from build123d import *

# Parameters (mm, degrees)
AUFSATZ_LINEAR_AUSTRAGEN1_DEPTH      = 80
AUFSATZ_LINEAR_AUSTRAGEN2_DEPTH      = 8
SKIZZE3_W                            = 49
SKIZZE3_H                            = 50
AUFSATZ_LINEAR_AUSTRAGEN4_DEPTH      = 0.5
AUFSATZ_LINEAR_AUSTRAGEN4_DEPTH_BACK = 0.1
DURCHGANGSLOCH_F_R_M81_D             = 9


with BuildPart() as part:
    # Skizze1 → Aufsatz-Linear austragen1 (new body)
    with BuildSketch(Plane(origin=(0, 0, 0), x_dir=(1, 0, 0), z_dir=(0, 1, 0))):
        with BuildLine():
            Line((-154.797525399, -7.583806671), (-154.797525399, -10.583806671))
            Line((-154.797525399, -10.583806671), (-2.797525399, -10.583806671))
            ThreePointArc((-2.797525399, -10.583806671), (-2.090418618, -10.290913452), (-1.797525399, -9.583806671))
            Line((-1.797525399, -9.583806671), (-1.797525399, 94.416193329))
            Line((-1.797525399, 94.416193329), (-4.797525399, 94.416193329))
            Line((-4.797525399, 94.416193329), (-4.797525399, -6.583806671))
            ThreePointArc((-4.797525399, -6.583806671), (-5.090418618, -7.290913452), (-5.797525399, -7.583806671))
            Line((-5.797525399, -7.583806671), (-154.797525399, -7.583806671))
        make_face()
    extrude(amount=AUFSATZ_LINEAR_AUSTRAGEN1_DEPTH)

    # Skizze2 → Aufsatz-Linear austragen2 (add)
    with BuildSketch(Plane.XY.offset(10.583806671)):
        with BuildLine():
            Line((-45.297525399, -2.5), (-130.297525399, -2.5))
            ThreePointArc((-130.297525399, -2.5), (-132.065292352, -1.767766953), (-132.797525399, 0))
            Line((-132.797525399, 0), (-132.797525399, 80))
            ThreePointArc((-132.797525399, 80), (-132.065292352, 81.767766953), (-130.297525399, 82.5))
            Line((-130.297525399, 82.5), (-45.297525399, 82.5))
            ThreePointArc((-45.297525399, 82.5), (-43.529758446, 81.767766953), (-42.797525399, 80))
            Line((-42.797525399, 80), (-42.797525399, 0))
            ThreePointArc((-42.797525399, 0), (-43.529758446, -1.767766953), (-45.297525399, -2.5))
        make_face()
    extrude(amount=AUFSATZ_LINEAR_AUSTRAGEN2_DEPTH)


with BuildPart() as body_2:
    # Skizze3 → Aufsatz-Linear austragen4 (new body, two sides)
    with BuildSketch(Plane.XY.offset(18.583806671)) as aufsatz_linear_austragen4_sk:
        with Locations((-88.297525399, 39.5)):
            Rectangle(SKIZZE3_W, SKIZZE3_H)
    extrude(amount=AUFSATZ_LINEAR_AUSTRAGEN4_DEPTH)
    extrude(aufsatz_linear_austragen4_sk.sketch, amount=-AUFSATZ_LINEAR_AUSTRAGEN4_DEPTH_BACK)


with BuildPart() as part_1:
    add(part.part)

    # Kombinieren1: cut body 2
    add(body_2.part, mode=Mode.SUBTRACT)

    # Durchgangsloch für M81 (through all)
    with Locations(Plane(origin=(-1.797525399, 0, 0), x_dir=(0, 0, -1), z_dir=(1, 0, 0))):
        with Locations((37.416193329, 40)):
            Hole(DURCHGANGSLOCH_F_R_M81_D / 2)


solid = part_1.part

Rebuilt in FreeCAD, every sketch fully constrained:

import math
import FreeCAD as App
import Part
import Sketcher
from FreeCAD import Vector
Q = App.Units.Quantity

doc = App.newDocument("Part")
params = doc.addObject("Spreadsheet::Sheet", "Params")
for row, (alias, value) in enumerate([
    ("sketch1_radius", "1 mm"),
    ("sketch1_width", "152 mm"),
    ("sketch1_width2", "3 mm"),
    ("sketch1_height", "104 mm"),
    ("pad1_length", "80 mm"),
    ("sketch2_radius", "2.5 mm"),
    ("sketch2_width", "85 mm"),
    ("sketch2_height", "80 mm"),
    ("pad2_length", "8 mm"),
    ("sketch3_width", "49 mm"),
    ("sketch3_height", "50 mm"),
    ("pad3_length", "0.5 mm"),
    ("pad3_length2", "0.1 mm"),
    ("sketch4_diameter", "9 mm"),
    ("hole_diameter", "9 mm"),
], start=1):
    params.set(f"A{row}", alias)
    params.set(f"B{row}", "=" + value)
    params.setAlias(f"B{row}", alias)

body = doc.addObject("PartDesign::Body", "Body")

# Sketch on XZ plane
sketch1 = body.newObject("Sketcher::SketchObject", "Sketch")
sketch1.AttachmentSupport = (doc.getObject("XZ_Plane"), [""])
sketch1.MapMode = "FlatFace"
sketch1.addGeometry([
    Part.LineSegment(Vector(-154.8, 7.6, 0), Vector(-154.8, 10.6, 0)),  # 0
    Part.LineSegment(Vector(-154.8, 10.6, 0), Vector(-2.8, 10.6, 0)),  # 1
    Part.ArcOfCircle(Part.Circle(Vector(-2.8, 9.6, 0), Vector(0, 0, 1), 1), math.radians(0), math.radians(90)),  # 2
    Part.LineSegment(Vector(-1.8, 9.6, 0), Vector(-1.8, -94.4, 0)),  # 3
    Part.LineSegment(Vector(-1.8, -94.4, 0), Vector(-4.8, -94.4, 0)),  # 4
    Part.LineSegment(Vector(-4.8, -94.4, 0), Vector(-4.8, 6.6, 0)),  # 5
    Part.ArcOfCircle(Part.Circle(Vector(-5.8, 6.6, 0), Vector(0, 0, 1), 1), math.radians(0), math.radians(90)),  # 6
    Part.LineSegment(Vector(-5.8, 7.6, 0), Vector(-154.8, 7.6, 0)),  # 7
], False)
sketch1.addConstraint([
    Sketcher.Constraint("Coincident", 0, 2, 1, 1),
    Sketcher.Constraint("Tangent", 1, 2, 2, 2),
    Sketcher.Constraint("Tangent", 2, 1, 3, 1),
    Sketcher.Constraint("Coincident", 3, 2, 4, 1),
    Sketcher.Constraint("Coincident", 4, 2, 5, 1),
    Sketcher.Constraint("Tangent", 5, 2, 6, 1),
    Sketcher.Constraint("Tangent", 6, 2, 7, 1),
    Sketcher.Constraint("Coincident", 7, 2, 0, 1),
    Sketcher.Constraint("Vertical", 0),
    Sketcher.Constraint("Horizontal", 1),
    Sketcher.Constraint("Vertical", 3),
    Sketcher.Constraint("Horizontal", 4),
    Sketcher.Constraint("Vertical", 5),
    Sketcher.Constraint("Horizontal", 7),
    Sketcher.Constraint("Equal", 2, 6),
    Sketcher.Constraint("Equal", 4, 0),
    Sketcher.Constraint("Radius", 2, Q("1 mm")),
    Sketcher.Constraint("DistanceX", 1, 1, 1, 2, Q("152 mm")),
    Sketcher.Constraint("DistanceX", 4, 2, 4, 1, Q("3 mm")),
    Sketcher.Constraint("DistanceY", 3, 2, 3, 1, Q("104 mm")),
    Sketcher.Constraint("DistanceX", 2, 3, -1, 1, Q("2.797525 mm")),
    Sketcher.Constraint("DistanceY", -1, 1, 2, 3, Q("9.583807 mm")),
])
sketch1.setExpression("Constraints[16]", "Params.sketch1_radius")
sketch1.setExpression("Constraints[17]", "Params.sketch1_width")
sketch1.setExpression("Constraints[18]", "Params.sketch1_width2")
sketch1.setExpression("Constraints[19]", "Params.sketch1_height")
pad1 = body.newObject("PartDesign::Pad", "Pad")
pad1.Profile = sketch1
pad1.setExpression("Length", "Params.pad1_length")
pad1.Reversed = True

# Sketch on XY plane
sketch2 = body.newObject("Sketcher::SketchObject", "Sketch001")
sketch2.AttachmentSupport = (doc.getObject("XY_Plane"), [""])
sketch2.MapMode = "FlatFace"
sketch2.AttachmentOffset = App.Placement(Vector(0, 0, 10.583807), App.Rotation())
sketch2.addGeometry([
    Part.LineSegment(Vector(-130.3, -2.5, 0), Vector(-45.3, -2.5, 0)),  # 0
    Part.ArcOfCircle(Part.Circle(Vector(-45.3, 0, 0), Vector(0, 0, 1), 2.5), math.radians(-90), math.radians(0)),  # 1
    Part.LineSegment(Vector(-42.8, 0, 0), Vector(-42.8, 80, 0)),  # 2
    Part.ArcOfCircle(Part.Circle(Vector(-45.3, 80, 0), Vector(0, 0, 1), 2.5), math.radians(0), math.radians(90)),  # 3
    Part.LineSegment(Vector(-45.3, 82.5, 0), Vector(-130.3, 82.5, 0)),  # 4
    Part.ArcOfCircle(Part.Circle(Vector(-130.3, 80, 0), Vector(0, 0, 1), 2.5), math.radians(90), math.radians(180)),  # 5
    Part.LineSegment(Vector(-132.8, 80, 0), Vector(-132.8, 0, 0)),  # 6
    Part.ArcOfCircle(Part.Circle(Vector(-130.3, 0, 0), Vector(0, 0, 1), 2.5), math.radians(180), math.radians(270)),  # 7
], False)
sketch2.addConstraint([
    Sketcher.Constraint("Tangent", 0, 2, 1, 1),
    Sketcher.Constraint("Tangent", 1, 2, 2, 1),
    Sketcher.Constraint("Tangent", 2, 2, 3, 1),
    Sketcher.Constraint("Tangent", 3, 2, 4, 1),
    Sketcher.Constraint("Tangent", 4, 2, 5, 1),
    Sketcher.Constraint("Tangent", 5, 2, 6, 1),
    Sketcher.Constraint("Tangent", 6, 2, 7, 1),
    Sketcher.Constraint("Tangent", 7, 2, 0, 1),
    Sketcher.Constraint("Horizontal", 0),
    Sketcher.Constraint("Vertical", 2),
    Sketcher.Constraint("Horizontal", 4),
    Sketcher.Constraint("Vertical", 6),
    Sketcher.Constraint("Equal", 1, 3),
    Sketcher.Constraint("Equal", 3, 5),
    Sketcher.Constraint("Equal", 5, 7),
    Sketcher.Constraint("PointOnObject", 1, 3, -1),
    Sketcher.Constraint("Radius", 1, Q("2.5 mm")),
    Sketcher.Constraint("DistanceX", 0, 1, 0, 2, Q("85 mm")),
    Sketcher.Constraint("DistanceY", 2, 1, 2, 2, Q("80 mm")),
    Sketcher.Constraint("DistanceX", 1, 3, -1, 1, Q("45.297525 mm")),
])
sketch2.setExpression("Constraints[16]", "Params.sketch2_radius")
sketch2.setExpression("Constraints[17]", "Params.sketch2_width")
sketch2.setExpression("Constraints[18]", "Params.sketch2_height")
pad2 = body.newObject("PartDesign::Pad", "Pad001")
pad2.Profile = sketch2
pad2.setExpression("Length", "Params.pad2_length")
body2 = doc.addObject("PartDesign::Body", "Body001")

# Sketch on XY plane
sketch3 = body2.newObject("Sketcher::SketchObject", "Sketch002")
sketch3.AttachmentSupport = (doc.getObject("XY_Plane001"), [""])
sketch3.MapMode = "FlatFace"
sketch3.AttachmentOffset = App.Placement(Vector(0, 0, 18.583807), App.Rotation())
sketch3.addGeometry([
    Part.LineSegment(Vector(-113, 64, 0), Vector(-113, 14, 0)),
    Part.LineSegment(Vector(-113, 14, 0), Vector(-64, 14, 0)),
    Part.LineSegment(Vector(-64, 14, 0), Vector(-64, 64, 0)),
    Part.LineSegment(Vector(-64, 64, 0), Vector(-113, 64, 0)),
], False)
sketch3.addConstraint([
    Sketcher.Constraint("Coincident", 0, 2, 1, 1),
    Sketcher.Constraint("Coincident", 1, 2, 2, 1),
    Sketcher.Constraint("Coincident", 2, 2, 3, 1),
    Sketcher.Constraint("Coincident", 3, 2, 0, 1),
    Sketcher.Constraint("Vertical", 0),
    Sketcher.Constraint("Horizontal", 1),
    Sketcher.Constraint("Vertical", 2),
    Sketcher.Constraint("Horizontal", 3),
    Sketcher.Constraint("DistanceX", 1, 1, 1, 2, Q("49 mm")),
    Sketcher.Constraint("DistanceY", 0, 2, 0, 1, Q("50 mm")),
    Sketcher.Constraint("DistanceY", -1, 1, 0, 2, Q("14.5 mm")),
    Sketcher.Constraint("DistanceX", 0, 2, -1, 1, Q("112.797525 mm")),
])
sketch3.setExpression("Constraints[8]", "Params.sketch3_width")
sketch3.setExpression("Constraints[9]", "Params.sketch3_height")
pad3 = body2.newObject("PartDesign::Pad", "Pad002")
pad3.Profile = sketch3
pad3.Type = "TwoLengths"
pad3.setExpression("Length", "Params.pad3_length")
pad3.setExpression("Length2", "Params.pad3_length2")
doc.recompute()

boolean = body.newObject("PartDesign::Boolean", "Boolean")
boolean.Type = "Cut"
boolean.addObjects([body2])

# Sketch on YZ plane
sketch4 = body.newObject("Sketcher::SketchObject", "Sketch003")
sketch4.AttachmentSupport = (doc.getObject("YZ_Plane"), [""])
sketch4.MapMode = "FlatFace"
sketch4.AttachmentOffset = App.Placement(Vector(0, 0, -1.797525), App.Rotation())
sketch4.addGeometry(Part.Circle(Vector(40, -37.4, 0), Vector(0, 0, 1), 4.5), False)
sketch4.addConstraint([
    Sketcher.Constraint("Diameter", 0, Q("9 mm")),
    Sketcher.Constraint("DistanceX", -1, 1, 0, 3, Q("40 mm")),
    Sketcher.Constraint("DistanceY", 0, 3, -1, 1, Q("37.416193 mm")),
])
sketch4.setExpression("Constraints[0]", "Params.sketch4_diameter")
doc.recompute()
hole = body.newObject("PartDesign::Hole", "Hole")
hole.Profile = sketch4
hole.ThreadType = "None"
hole.setExpression("Diameter", "Params.hole_diameter")
hole.DepthType = "ThroughAll"

doc.recompute()
